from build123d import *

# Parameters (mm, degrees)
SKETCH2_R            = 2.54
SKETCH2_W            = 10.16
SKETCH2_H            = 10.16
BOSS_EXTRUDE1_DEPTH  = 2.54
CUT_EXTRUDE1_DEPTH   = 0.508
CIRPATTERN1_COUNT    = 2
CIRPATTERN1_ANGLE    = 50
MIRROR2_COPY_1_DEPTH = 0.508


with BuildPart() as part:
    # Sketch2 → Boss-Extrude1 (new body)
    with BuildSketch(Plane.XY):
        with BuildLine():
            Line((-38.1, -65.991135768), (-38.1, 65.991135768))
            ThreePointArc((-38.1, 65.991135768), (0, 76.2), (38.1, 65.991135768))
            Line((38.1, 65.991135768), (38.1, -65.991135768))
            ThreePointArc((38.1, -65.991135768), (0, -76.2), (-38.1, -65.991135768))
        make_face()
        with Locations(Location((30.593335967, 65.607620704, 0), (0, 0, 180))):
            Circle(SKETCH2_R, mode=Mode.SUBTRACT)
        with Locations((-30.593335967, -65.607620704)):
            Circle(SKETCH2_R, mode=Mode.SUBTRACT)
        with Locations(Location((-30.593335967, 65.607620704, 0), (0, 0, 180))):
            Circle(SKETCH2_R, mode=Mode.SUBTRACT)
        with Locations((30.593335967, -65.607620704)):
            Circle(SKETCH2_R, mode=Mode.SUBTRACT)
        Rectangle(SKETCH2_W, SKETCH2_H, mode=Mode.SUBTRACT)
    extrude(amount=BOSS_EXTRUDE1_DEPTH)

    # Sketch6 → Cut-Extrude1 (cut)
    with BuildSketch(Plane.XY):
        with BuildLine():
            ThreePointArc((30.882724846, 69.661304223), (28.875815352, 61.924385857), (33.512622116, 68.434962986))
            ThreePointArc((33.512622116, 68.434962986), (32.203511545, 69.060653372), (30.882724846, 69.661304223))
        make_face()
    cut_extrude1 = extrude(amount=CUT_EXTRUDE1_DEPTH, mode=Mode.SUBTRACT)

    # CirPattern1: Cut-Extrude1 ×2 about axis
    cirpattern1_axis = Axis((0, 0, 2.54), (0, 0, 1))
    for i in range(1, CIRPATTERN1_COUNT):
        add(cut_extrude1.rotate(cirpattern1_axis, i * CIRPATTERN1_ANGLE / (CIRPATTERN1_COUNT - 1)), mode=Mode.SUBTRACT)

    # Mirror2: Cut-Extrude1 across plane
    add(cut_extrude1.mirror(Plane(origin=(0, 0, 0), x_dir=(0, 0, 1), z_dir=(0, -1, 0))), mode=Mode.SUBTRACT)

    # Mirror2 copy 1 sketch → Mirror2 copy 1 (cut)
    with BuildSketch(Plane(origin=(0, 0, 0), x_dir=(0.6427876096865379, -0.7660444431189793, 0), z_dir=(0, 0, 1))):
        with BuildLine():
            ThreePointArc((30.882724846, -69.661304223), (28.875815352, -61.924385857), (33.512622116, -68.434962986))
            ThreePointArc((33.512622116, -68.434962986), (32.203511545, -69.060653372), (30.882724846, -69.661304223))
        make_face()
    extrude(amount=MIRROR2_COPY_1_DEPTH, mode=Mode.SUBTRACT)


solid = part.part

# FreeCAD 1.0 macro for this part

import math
import FreeCAD as App
import Part
import Sketcher
Q = App.Units.Quantity

doc = App.newDocument("Part")
body = doc.addObject("PartDesign::Body", "Body")

# Sketch on XY plane
sketch1 = doc.addObject("Sketcher::SketchObject", "Sketch")
body.addObject(sketch1)
sketch1.AttachmentSupport = (doc.XY_Plane, [""])
sketch1.MapMode = "FlatFace"
sketch1.addGeometry(Part.LineSegment(App.Vector(-38.1, 65.991136, 0), App.Vector(-38.1, -65.991136, 0)), False)
sketch1.addGeometry(Part.ArcOfCircle(Part.Circle(App.Vector(0, 0, 0), App.Vector(0, 0, 1), 76.2), math.radians(-120), math.radians(-60)), False)
sketch1.addGeometry(Part.LineSegment(App.Vector(38.1, -65.991136, 0), App.Vector(38.1, 65.991136, 0)), False)
sketch1.addGeometry(Part.ArcOfCircle(Part.Circle(App.Vector(0, 0, 0), App.Vector(0, 0, 1), 76.2), math.radians(60), math.radians(120)), False)
sketch1.addGeometry(Part.Circle(App.Vector(30.593336, -65.607621, 0), App.Vector(0, 0, 1), 2.54), False)
sketch1.addGeometry(Part.Circle(App.Vector(-30.593336, -65.607621, 0), App.Vector(0, 0, 1), 2.54), False)
sketch1.addGeometry(Part.Circle(App.Vector(30.593336, 65.607621, 0), App.Vector(0, 0, 1), 2.54), False)
sketch1.addGeometry(Part.LineSegment(App.Vector(-5.08, -5.08, 0), App.Vector(-5.08, 5.08, 0)), False)
sketch1.addGeometry(Part.LineSegment(App.Vector(-5.08, 5.08, 0), App.Vector(5.08, 5.08, 0)), False)
sketch1.addGeometry(Part.LineSegment(App.Vector(5.08, 5.08, 0), App.Vector(5.08, -5.08, 0)), False)
sketch1.addGeometry(Part.LineSegment(App.Vector(5.08, -5.08, 0), App.Vector(-5.08, -5.08, 0)), False)
sketch1.addGeometry(Part.Circle(App.Vector(-30.593336, 65.607621, 0), App.Vector(0, 0, 1), 2.54), False)
sketch1.addConstraint(Sketcher.Constraint("Coincident", 0, 2, 1, 1))
sketch1.addConstraint(Sketcher.Constraint("Coincident", 1, 2, 2, 1))
sketch1.addConstraint(Sketcher.Constraint("Coincident", 2, 2, 3, 1))
sketch1.addConstraint(Sketcher.Constraint("Coincident", 3, 2, 0, 1))
sketch1.addConstraint(Sketcher.Constraint("Coincident", 7, 2, 8, 1))
sketch1.addConstraint(Sketcher.Constraint("Coincident", 8, 2, 9, 1))
sketch1.addConstraint(Sketcher.Constraint("Coincident", 9, 2, 10, 1))
sketch1.addConstraint(Sketcher.Constraint("Coincident", 10, 2, 7, 1))
sketch1.addConstraint(Sketcher.Constraint("Vertical", 0))
sketch1.addConstraint(Sketcher.Constraint("Vertical", 2))
sketch1.addConstraint(Sketcher.Constraint("Vertical", 7))
sketch1.addConstraint(Sketcher.Constraint("Horizontal", 8))
sketch1.addConstraint(Sketcher.Constraint("Vertical", 9))
sketch1.addConstraint(Sketcher.Constraint("Horizontal", 10))
sketch1.addConstraint(Sketcher.Constraint("Coincident", 1, 3, -1, 1))
sketch1.addConstraint(Sketcher.Constraint("Coincident", 3, 3, -1, 1))
sketch1.addConstraint(Sketcher.Constraint("Equal", 1, 3))
sketch1.addConstraint(Sketcher.Constraint("Equal", 4, 5))
sketch1.addConstraint(Sketcher.Constraint("Equal", 5, 6))
sketch1.addConstraint(Sketcher.Constraint("Equal", 6, 11))
sketch1.addConstraint(Sketcher.Constraint("Symmetric", 5, 3, 6, 3, -1, 1))
sketch1.addConstraint(Sketcher.Constraint("Symmetric", 4, 3, 11, 3, -1, 1))
sketch1.addConstraint(Sketcher.Constraint("Symmetric", 7, 2, 9, 2, -1, 1))
sketch1.addConstraint(Sketcher.Constraint("Symmetric", 4, 3, 5, 3, -2))
sketch1.addConstraint(Sketcher.Constraint("Horizontal", 0, 2, 1, 2))
sketch1.addConstraint(Sketcher.Constraint("Equal", 10, 7))
sketch1.addConstraint(Sketcher.Constraint("Radius", 1, Q("3 in")))
sketch1.addConstraint(Sketcher.Constraint("Diameter", 4, Q("0.2 in")))
sketch1.addConstraint(Sketcher.Constraint("DistanceX", 8, 1, 8, 2, Q("0.4 in")))
sketch1.addConstraint(Sketcher.Constraint("DistanceX", 0, 2, 1, 2, Q("3 in")))
sketch1.addConstraint(Sketcher.Constraint("DistanceY", 4, 3, -1, 1, Q("65.607621 mm")))
sketch1.addConstraint(Sketcher.Constraint("DistanceX", 5, 3, 4, 3, Q("61.186672 mm")))
pad1 = doc.addObject("PartDesign::Pad", "Pad")
body.addObject(pad1)
pad1.Profile = sketch1
pad1.Length = Q("0.1 in")

# Sketch on XY plane
sketch2 = doc.addObject("Sketcher::SketchObject", "Sketch001")
body.addObject(sketch2)
sketch2.AttachmentSupport = (doc.XY_Plane, [""])
sketch2.MapMode = "FlatFace"
sketch2.addGeometry(Part.ArcOfCircle(Part.Circle(App.Vector(30.593336, 65.607621, 0), App.Vector(0, 0, 1), 4.064), math.radians(85.916632), math.radians(404.083368)), False)
sketch2.addGeometry(Part.ArcOfCircle(Part.Circle(App.Vector(0, 0.000001, 0), App.Vector(0, 0, 1), 76.199999), math.radians(63.908994), math.radians(66.091006)), False)
sketch2.addConstraint(Sketcher.Constraint("Coincident", 0, 1, 1, 2))
sketch2.addConstraint(Sketcher.Constraint("Coincident", 1, 1, 0, 2))
sketch2.addConstraint(Sketcher.Constraint("Coincident", 1, 3, -1, 1))
sketch2.addConstraint(Sketcher.Constraint("Radius", 1, Q("3 in")))
sketch2.addConstraint(Sketcher.Constraint("Radius", 0, Q("0.16 in")))
sketch2.addConstraint(Sketcher.Constraint("DistanceY", -1, 1, 0, 3, Q("65.607621 mm")))
sketch2.addConstraint(Sketcher.Constraint("DistanceX", 0, 3, 0, 1, Q("0.289389 mm")))
pocket1 = doc.addObject("PartDesign::Pocket", "Pocket")
body.addObject(pocket1)
pocket1.Profile = sketch2
pocket1.Length = Q("0.02 in")
pocket1.Reversed = True
doc.recompute()

polarpattern = doc.addObject("PartDesign::PolarPattern", "PolarPattern")
body.addObject(polarpattern)
polarpattern.Originals = [pocket1]
polarpattern.Axis = (doc.Z_Axis, [""])
polarpattern.Angle = 50
polarpattern.Occurrences = 2
body.Tip = polarpattern
doc.recompute()

mirrored = doc.addObject("PartDesign::Mirrored", "Mirrored")
body.addObject(mirrored)
mirrored.Originals = [pocket1]
mirrored.MirrorPlane = (doc.XZ_Plane, [""])
body.Tip = mirrored

# Sketch on XY plane
sketch3 = doc.addObject("Sketcher::SketchObject", "Sketch002")
body.addObject(sketch3)
sketch3.AttachmentSupport = (doc.XY_Plane, [""])
sketch3.MapMode = "FlatFace"
sketch3.addGeometry(Part.ArcOfCircle(Part.Circle(App.Vector(-30.593336, -65.607621, 0), App.Vector(0, 0, 1), 4.064), math.radians(-94.083368), math.radians(224.083368)), False)
sketch3.addGeometry(Part.ArcOfCircle(Part.Circle(App.Vector(0, -0.000001, 0), App.Vector(0, 0, 1), 76.199999), math.radians(-116.091006), math.radians(-113.908994)), False)
sketch3.addConstraint(Sketcher.Constraint("Coincident", 0, 1, 1, 2))
sketch3.addConstraint(Sketcher.Constraint("Coincident", 1, 1, 0, 2))
sketch3.addConstraint(Sketcher.Constraint("Coincident", 1, 3, -1, 1))
sketch3.addConstraint(Sketcher.Constraint("Radius", 1, Q("3 in")))
sketch3.addConstraint(Sketcher.Constraint("Radius", 0, Q("0.16 in")))
sketch3.addConstraint(Sketcher.Constraint("DistanceY", 0, 3, -1, 1, Q("65.607621 mm")))
sketch3.addConstraint(Sketcher.Constraint("DistanceX", 0, 1, 0, 3, Q("0.289389 mm")))
pocket2 = doc.addObject("PartDesign::Pocket", "Pocket001")
body.addObject(pocket2)
pocket2.Profile = sketch3
pocket2.Length = Q("0.02 in")
pocket2.Reversed = True

doc.recompute()
